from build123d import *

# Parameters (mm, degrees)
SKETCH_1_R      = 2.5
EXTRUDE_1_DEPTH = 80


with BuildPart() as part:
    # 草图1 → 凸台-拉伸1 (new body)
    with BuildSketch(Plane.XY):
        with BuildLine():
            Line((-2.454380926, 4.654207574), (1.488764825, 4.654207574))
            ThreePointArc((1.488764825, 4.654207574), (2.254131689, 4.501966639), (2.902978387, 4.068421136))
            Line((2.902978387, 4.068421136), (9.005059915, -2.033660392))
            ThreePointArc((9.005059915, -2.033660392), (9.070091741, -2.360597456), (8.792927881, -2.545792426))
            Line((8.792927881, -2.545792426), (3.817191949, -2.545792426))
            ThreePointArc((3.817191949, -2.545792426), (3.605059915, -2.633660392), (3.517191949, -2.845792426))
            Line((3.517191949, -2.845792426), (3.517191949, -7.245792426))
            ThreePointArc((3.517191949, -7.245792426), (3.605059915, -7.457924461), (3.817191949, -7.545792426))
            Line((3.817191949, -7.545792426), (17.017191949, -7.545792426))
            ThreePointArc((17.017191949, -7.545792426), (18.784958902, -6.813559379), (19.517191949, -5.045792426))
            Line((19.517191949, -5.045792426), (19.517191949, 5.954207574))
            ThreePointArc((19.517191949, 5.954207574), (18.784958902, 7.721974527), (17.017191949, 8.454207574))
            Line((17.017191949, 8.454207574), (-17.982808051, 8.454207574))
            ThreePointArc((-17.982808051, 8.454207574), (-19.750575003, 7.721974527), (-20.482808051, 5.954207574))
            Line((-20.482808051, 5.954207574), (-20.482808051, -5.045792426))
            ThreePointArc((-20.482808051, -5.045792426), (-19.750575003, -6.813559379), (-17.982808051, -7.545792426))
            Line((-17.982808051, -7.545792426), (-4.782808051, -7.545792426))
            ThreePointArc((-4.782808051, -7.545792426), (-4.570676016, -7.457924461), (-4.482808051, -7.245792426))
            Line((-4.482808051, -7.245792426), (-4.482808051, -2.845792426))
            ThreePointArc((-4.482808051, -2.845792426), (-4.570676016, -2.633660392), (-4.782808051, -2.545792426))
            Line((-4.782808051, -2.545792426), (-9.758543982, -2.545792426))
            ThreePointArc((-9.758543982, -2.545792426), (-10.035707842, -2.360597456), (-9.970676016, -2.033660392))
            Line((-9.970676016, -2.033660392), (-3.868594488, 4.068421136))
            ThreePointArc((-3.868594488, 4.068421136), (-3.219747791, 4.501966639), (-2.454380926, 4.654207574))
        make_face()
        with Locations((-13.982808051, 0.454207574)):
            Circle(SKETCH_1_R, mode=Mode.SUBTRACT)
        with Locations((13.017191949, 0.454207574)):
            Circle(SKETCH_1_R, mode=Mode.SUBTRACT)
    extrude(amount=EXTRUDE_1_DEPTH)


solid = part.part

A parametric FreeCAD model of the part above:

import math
import FreeCAD as App
import Part
import Sketcher
from FreeCAD import Vector
Q = App.Units.Quantity

doc = App.newDocument("Part")
body = doc.addObject("PartDesign::Body", "Body")

# Sketch on XY plane
sketch1 = body.newObject("Sketcher::SketchObject", "Sketch")
sketch1.AttachmentSupport = (doc.getObject("XY_Plane"), [""])
sketch1.MapMode = "FlatFace"
sketch1.addGeometry([
    Part.LineSegment(Vector(-2.45, 4.65, 0), Vector(1.49, 4.65, 0)),  # 0
    Part.ArcOfCircle(Part.Circle(Vector(1.49, 2.65, 0), Vector(0, 0, 1), 2), math.radians(45), math.radians(90)),  # 1
    Part.LineSegment(Vector(2.9, 4.07, 0), Vector(9.01, -2.03, 0)),  # 2
    Part.ArcOfCircle(Part.Circle(Vector(8.79, -2.25, 0), Vector(0, 0, 1), 0.3), math.radians(-90), math.radians(45)),  # 3
    Part.LineSegment(Vector(8.79, -2.55, 0), Vector(3.82, -2.55, 0)),  # 4
    Part.ArcOfCircle(Part.Circle(Vector(3.82, -2.85, 0), Vector(0, 0, 1), 0.3), math.radians(90), math.radians(180)),  # 5
    Part.LineSegment(Vector(3.52, -2.85, 0), Vector(3.52, -7.25, 0)),  # 6
    Part.ArcOfCircle(Part.Circle(Vector(3.82, -7.25, 0), Vector(0, 0, 1), 0.3), math.radians(180), math.radians(270)),  # 7
    Part.LineSegment(Vector(3.82, -7.55, 0), Vector(17.02, -7.55, 0)),  # 8
    Part.ArcOfCircle(Part.Circle(Vector(17.02, -5.05, 0), Vector(0, 0, 1), 2.5), math.radians(-90), math.radians(0)),  # 9
    Part.LineSegment(Vector(19.52, -5.05, 0), Vector(19.52, 5.95, 0)),  # 10
    Part.ArcOfCircle(Part.Circle(Vector(17.02, 5.95, 0), Vector(0, 0, 1), 2.5), math.radians(0), math.radians(90)),  # 11
    Part.LineSegment(Vector(17.02, 8.45, 0), Vector(-17.98, 8.45, 0)),  # 12
    Part.ArcOfCircle(Part.Circle(Vector(-17.98, 5.95, 0), Vector(0, 0, 1), 2.5), math.radians(90), math.radians(180)),  # 13
    Part.LineSegment(Vector(-20.48, 5.95, 0), Vector(-20.48, -5.05, 0)),  # 14
    Part.ArcOfCircle(Part.Circle(Vector(-17.98, -5.05, 0), Vector(0, 0, 1), 2.5), math.radians(-180), math.radians(-90)),  # 15
    Part.LineSegment(Vector(-17.98, -7.55, 0), Vector(-4.78, -7.55, 0)),  # 16
    Part.ArcOfCircle(Part.Circle(Vector(-4.78, -7.25, 0), Vector(0, 0, 1), 0.3), math.radians(-90), math.radians(0)),  # 17
    Part.LineSegment(Vector(-4.48, -7.25, 0), Vector(-4.48, -2.85, 0)),  # 18
    Part.ArcOfCircle(Part.Circle(Vector(-4.78, -2.85, 0), Vector(0, 0, 1), 0.3), math.radians(0), math.radians(90)),  # 19
    Part.LineSegment(Vector(-4.78, -2.55, 0), Vector(-9.76, -2.55, 0)),  # 20
    Part.ArcOfCircle(Part.Circle(Vector(-9.76, -2.25, 0), Vector(0, 0, 1), 0.3), math.radians(135), math.radians(270)),  # 21
    Part.LineSegment(Vector(-9.97, -2.03, 0), Vector(-3.87, 4.07, 0)),  # 22
    Part.ArcOfCircle(Part.Circle(Vector(-2.45, 2.65, 0), Vector(0, 0, 1), 2), math.radians(90), math.radians(135)),  # 23
    Part.Circle(Vector(-13.98, 0.45, 0), Vector(0, 0, 1), 2.5),  # 24
    Part.Circle(Vector(13.02, 0.45, 0), Vector(0, 0, 1), 2.5),  # 25
], False)
sketch1.addConstraint([
    Sketcher.Constraint("Tangent", 0, 2, 1, 2),
    Sketcher.Constraint("Tangent", 1, 1, 2, 1),
    Sketcher.Constraint("Tangent", 2, 2, 3, 2),
    Sketcher.Constraint("Tangent", 3, 1, 4, 1),
    Sketcher.Constraint("Tangent", 4, 2, 5, 1),
    Sketcher.Constraint("Tangent", 5, 2, 6, 1),
    Sketcher.Constraint("Tangent", 6, 2, 7, 1),
    Sketcher.Constraint("Tangent", 7, 2, 8, 1),
    Sketcher.Constraint("Tangent", 8, 2, 9, 1),
    Sketcher.Constraint("Tangent", 9, 2, 10, 1),
    Sketcher.Constraint("Tangent", 10, 2, 11, 1),
    Sketcher.Constraint("Tangent", 11, 2, 12, 1),
    Sketcher.Constraint("Tangent", 12, 2, 13, 1),
    Sketcher.Constraint("Tangent", 13, 2, 14, 1),
    Sketcher.Constraint("Tangent", 14, 2, 15, 1),
    Sketcher.Constraint("Tangent", 15, 2, 16, 1),
    Sketcher.Constraint("Tangent", 16, 2, 17, 1),
    Sketcher.Constraint("Tangent", 17, 2, 18, 1),
    Sketcher.Constraint("Tangent", 18, 2, 19, 1),
    Sketcher.Constraint("Tangent", 19, 2, 20, 1),
    Sketcher.Constraint("Tangent", 20, 2, 21, 2),
    Sketcher.Constraint("Tangent", 21, 1, 22, 1),
    Sketcher.Constraint("Tangent", 22, 2, 23, 2),
    Sketcher.Constraint("Tangent", 23, 1, 0, 1),
    Sketcher.Constraint("Horizontal", 0),
    Sketcher.Constraint("Horizontal", 4),
    Sketcher.Constraint("Vertical", 6),
    Sketcher.Constraint("Horizontal", 8),
    Sketcher.Constraint("Vertical", 10),
    Sketcher.Constraint("Horizontal", 12),
    Sketcher.Constraint("Vertical", 14),
    Sketcher.Constraint("Horizontal", 16),
    Sketcher.Constraint("Vertical", 18),
    Sketcher.Constraint("Horizontal", 20),
    Sketcher.Constraint("Equal", 3, 5),
    Sketcher.Constraint("Equal", 5, 7),
    Sketcher.Constraint("Equal", 9, 11),
    Sketcher.Constraint("Equal", 11, 13),
    Sketcher.Constraint("Equal", 13, 15),
    Sketcher.Constraint("Equal", 7, 17),
    Sketcher.Constraint("Equal", 17, 19),
    Sketcher.Constraint("Equal", 19, 21),
    Sketcher.Constraint("Equal", 1, 23),
    Sketcher.Constraint("Equal", 15, 24),
    Sketcher.Constraint("Equal", 24, 25),
    Sketcher.Constraint("Perpendicular", 2, 22),
    Sketcher.Constraint("Horizontal", 9, 3, 15, 3),
    Sketcher.Constraint("Horizontal", 5, 3, 19, 3),
    Sketcher.Constraint("Horizontal", 24, 3, 25, 3),
    Sketcher.Constraint("Horizontal", 2, 2, 21, 1),
    Sketcher.Constraint("Equal", 8, 16),
    Sketcher.Constraint("Equal", 4, 20),
    Sketcher.Constraint("Diameter", 24, Q("5 mm")),
    Sketcher.Constraint("Radius", 1, Q("2 mm")),
    Sketcher.Constraint("Radius", 3, Q("0.3 mm")),
    Sketcher.Constraint("DistanceX", 12, 2, 12, 1, Q("35 mm")),
    Sketcher.Constraint("DistanceY", 10, 1, 10, 2, Q("11 mm")),
    Sketcher.Constraint("DistanceX", 8, 1, 8, 2, Q("13.2 mm")),
    Sketcher.Constraint("DistanceY", 6, 2, 6, 1, Q("4.4 mm")),
    Sketcher.Constraint("DistanceX", 13, 3, 24, 3, Q("4 mm")),
    Sketcher.Constraint("DistanceX", 25, 3, 9, 3, Q("4 mm")),
    Sketcher.Constraint("DistanceY", 3, 1, 25, 3, Q("3 mm")),
    Sketcher.Constraint("DistanceY", 3, 3, 1, 3, Q("4.9 mm")),
    Sketcher.Constraint("DistanceX", 0, 1, 0, 2, Q("3.943146 mm")),
    Sketcher.Constraint("DistanceX", -1, 1, 5, 3, Q("3.817192 mm")),
    Sketcher.Constraint("DistanceY", -1, 1, 1, 1, Q("4.068421 mm")),
])
pad1 = body.newObject("PartDesign::Pad", "Pad")
pad1.Profile = sketch1
pad1.Length = 80

doc.recompute()
